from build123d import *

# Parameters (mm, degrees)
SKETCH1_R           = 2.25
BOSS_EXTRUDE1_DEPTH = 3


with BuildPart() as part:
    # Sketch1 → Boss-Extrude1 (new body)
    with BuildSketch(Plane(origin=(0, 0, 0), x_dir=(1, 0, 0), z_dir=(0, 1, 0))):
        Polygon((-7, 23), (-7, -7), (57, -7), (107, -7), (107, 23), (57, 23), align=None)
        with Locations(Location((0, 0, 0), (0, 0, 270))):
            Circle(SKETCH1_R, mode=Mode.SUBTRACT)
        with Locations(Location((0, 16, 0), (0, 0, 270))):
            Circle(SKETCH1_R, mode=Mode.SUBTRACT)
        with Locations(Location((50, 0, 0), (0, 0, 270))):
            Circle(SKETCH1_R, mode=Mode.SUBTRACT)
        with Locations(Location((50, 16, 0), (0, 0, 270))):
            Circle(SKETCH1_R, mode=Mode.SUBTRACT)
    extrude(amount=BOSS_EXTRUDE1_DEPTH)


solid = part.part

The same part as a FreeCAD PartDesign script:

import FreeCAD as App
import Part
import Sketcher
from FreeCAD import Vector

doc = App.newDocument("Part")
body = doc.addObject("PartDesign::Body", "Body")

# Sketch on XZ plane
sketch1 = body.newObject("Sketcher::SketchObject", "Sketch")
sketch1.AttachmentSupport = (doc.getObject("XZ_Plane"), [""])
sketch1.MapMode = "FlatFace"
sketch1.addGeometry([
    Part.LineSegment(Vector(-7, -23, 0), Vector(-7, 7, 0)),  # 0
    Part.LineSegment(Vector(-7, 7, 0), Vector(107, 7, 0)),  # 1
    Part.LineSegment(Vector(107, 7, 0), Vector(107, -23, 0)),  # 2
    Part.LineSegment(Vector(107, -23, 0), Vector(-7, -23, 0)),  # 3
    Part.Circle(Vector(0, 0, 0), Vector(0, 0, 1), 2.25),  # 4
    Part.Circle(Vector(50, 0, 0), Vector(0, 0, 1), 2.25),  # 5
    Part.Circle(Vector(0, -16, 0), Vector(0, 0, 1), 2.25),  # 6
    Part.Circle(Vector(50, -16, 0), Vector(0, 0, 1), 2.25),  # 7
], False)
sketch1.addConstraint([
    Sketcher.Constraint("Coincident", 0, 2, 1, 1),
    Sketcher.Constraint("Coincident", 1, 2, 2, 1),
    Sketcher.Constraint("Coincident", 2, 2, 3, 1),
    Sketcher.Constraint("Coincident", 3, 2, 0, 1),
    Sketcher.Constraint("Vertical", 0),
    Sketcher.Constraint("Horizontal", 1),
    Sketcher.Constraint("Vertical", 2),
    Sketcher.Constraint("Horizontal", 3),
    Sketcher.Constraint("Coincident", 4, 3, -1, 1),
    Sketcher.Constraint("Equal", 4, 5),
    Sketcher.Constraint("Equal", 5, 6),
    Sketcher.Constraint("Equal", 6, 7),
    Sketcher.Constraint("PointOnObject", 5, 3, -1),
    Sketcher.Constraint("PointOnObject", 6, 3, -2),
    Sketcher.Constraint("Horizontal", 6, 3, 7, 3),
    Sketcher.Constraint("Vertical", 5, 3, 7, 3),
    Sketcher.Constraint("Diameter", 4, 4.5),
    Sketcher.Constraint("DistanceX", 1, 1, 1, 2, 114.0),
    Sketcher.Constraint("DistanceY", 0, 1, 0, 2, 30.0),
    Sketcher.Constraint("DistanceX", -1, 1, 5, 3, 50.0),
    Sketcher.Constraint("DistanceY", 6, 3, -1, 1, 16.0),
    Sketcher.Constraint("DistanceX", 0, 2, -1, 1, 7.0),
    Sketcher.Constraint("DistanceY", -1, 1, 0, 2, 7.0),
])
pad1 = body.newObject("PartDesign::Pad", "Pad")
pad1.Profile = sketch1
pad1.Length = 3
pad1.Reversed = True

doc.recompute()
